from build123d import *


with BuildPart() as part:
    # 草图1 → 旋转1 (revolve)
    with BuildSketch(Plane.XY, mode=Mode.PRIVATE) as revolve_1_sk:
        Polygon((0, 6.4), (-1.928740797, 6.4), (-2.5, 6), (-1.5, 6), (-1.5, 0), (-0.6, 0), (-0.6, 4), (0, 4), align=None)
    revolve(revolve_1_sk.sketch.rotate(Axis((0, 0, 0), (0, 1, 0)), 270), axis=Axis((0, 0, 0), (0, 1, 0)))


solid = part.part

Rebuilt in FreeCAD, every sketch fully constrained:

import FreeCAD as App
import Part
import Sketcher

V = App.Vector
Q = App.Units.Quantity

doc = App.newDocument("Part")
params = doc.addObject("Spreadsheet::Sheet", "Params")
for row, (alias, value) in enumerate([
    ("sketch1_width", "1 mm"),
    ("sketch1_height", "6 mm"),
    ("sketch1_height2", "4 mm"),
    ("sketch1_width2", "0.9 mm"),
    ("sketch1_width3", "0.6 mm"),
    ("revolution_angle", "360 deg"),
], start=1):
    params.set(f"A{row}", alias)
    params.set(f"B{row}", "=" + value)
    params.setAlias(f"B{row}", alias)

body = doc.addObject("PartDesign::Body", "Body")

# Sketch on XY plane
sketch1 = doc.addObject("Sketcher::SketchObject", "Sketch")
body.addObject(sketch1)
sketch1.AttachmentSupport = (doc.XY_Plane, [""])
sketch1.MapMode = "FlatFace"
sketch1.addGeometry(Part.LineSegment(V(0, 6.4, 0), V(-1.9, 6.4, 0)), False)
sketch1.addGeometry(Part.LineSegment(V(-1.9, 6.4, 0), V(-2.5, 6, 0)), False)
sketch1.addGeometry(Part.LineSegment(V(-2.5, 6, 0), V(-1.5, 6, 0)), False)
sketch1.addGeometry(Part.LineSegment(V(-1.5, 6, 0), V(-1.5, 0, 0)), False)
sketch1.addGeometry(Part.LineSegment(V(-1.5, 0, 0), V(-0.6, 0, 0)), False)
sketch1.addGeometry(Part.LineSegment(V(-0.6, 0, 0), V(-0.6, 4, 0)), False)
sketch1.addGeometry(Part.LineSegment(V(-0.6, 4, 0), V(0, 4, 0)), False)
sketch1.addGeometry(Part.LineSegment(V(0, 4, 0), V(0, 6.4, 0)), False)
sketch1.addConstraint(Sketcher.Constraint("Coincident", 0, 2, 1, 1))
sketch1.addConstraint(Sketcher.Constraint("Coincident", 1, 2, 2, 1))
sketch1.addConstraint(Sketcher.Constraint("Coincident", 2, 2, 3, 1))
sketch1.addConstraint(Sketcher.Constraint("Coincident", 3, 2, 4, 1))
sketch1.addConstraint(Sketcher.Constraint("Coincident", 4, 2, 5, 1))
sketch1.addConstraint(Sketcher.Constraint("Coincident", 5, 2, 6, 1))
sketch1.addConstraint(Sketcher.Constraint("Coincident", 6, 2, 7, 1))
sketch1.addConstraint(Sketcher.Constraint("Coincident", 7, 2, 0, 1))
sketch1.addConstraint(Sketcher.Constraint("Horizontal", 0))
sketch1.addConstraint(Sketcher.Constraint("Horizontal", 2))
sketch1.addConstraint(Sketcher.Constraint("Vertical", 3))
sketch1.addConstraint(Sketcher.Constraint("Horizontal", 4))
sketch1.addConstraint(Sketcher.Constraint("Vertical", 5))
sketch1.addConstraint(Sketcher.Constraint("Horizontal", 6))
sketch1.addConstraint(Sketcher.Constraint("Vertical", 7))
sketch1.addConstraint(Sketcher.Constraint("PointOnObject", 3, 2, -1))
sketch1.addConstraint(Sketcher.Constraint("PointOnObject", 6, 2, -2))
sketch1.addConstraint(Sketcher.Constraint("DistanceX", 2, 1, 2, 2, 1.0))
sketch1.addConstraint(Sketcher.Constraint("DistanceY", 3, 2, 3, 1, 6.0))
sketch1.addConstraint(Sketcher.Constraint("DistanceY", 5, 1, 5, 2, 4.0))
sketch1.addConstraint(Sketcher.Constraint("Angle", 1, Q("-145 deg")))
sketch1.addConstraint(Sketcher.Constraint("DistanceX", 4, 1, 4, 2, 0.9))
sketch1.addConstraint(Sketcher.Constraint("DistanceX", 6, 1, 6, 2, 0.6))
sketch1.addConstraint(Sketcher.Constraint("DistanceY", 7, 1, 7, 2, 2.4))
sketch1.setExpression("Constraints[17]", "Params.sketch1_width")
sketch1.setExpression("Constraints[18]", "Params.sketch1_height")
sketch1.setExpression("Constraints[19]", "Params.sketch1_height2")
sketch1.setExpression("Constraints[21]", "Params.sketch1_width2")
sketch1.setExpression("Constraints[22]", "Params.sketch1_width3")
revolution = doc.addObject("PartDesign::Revolution", "Revolution")
body.addObject(revolution)
revolution.Profile = sketch1
revolution.ReferenceAxis = (sketch1, ["V_Axis"])
revolution.setExpression("Angle", "Params.revolution_angle")

doc.recompute()
